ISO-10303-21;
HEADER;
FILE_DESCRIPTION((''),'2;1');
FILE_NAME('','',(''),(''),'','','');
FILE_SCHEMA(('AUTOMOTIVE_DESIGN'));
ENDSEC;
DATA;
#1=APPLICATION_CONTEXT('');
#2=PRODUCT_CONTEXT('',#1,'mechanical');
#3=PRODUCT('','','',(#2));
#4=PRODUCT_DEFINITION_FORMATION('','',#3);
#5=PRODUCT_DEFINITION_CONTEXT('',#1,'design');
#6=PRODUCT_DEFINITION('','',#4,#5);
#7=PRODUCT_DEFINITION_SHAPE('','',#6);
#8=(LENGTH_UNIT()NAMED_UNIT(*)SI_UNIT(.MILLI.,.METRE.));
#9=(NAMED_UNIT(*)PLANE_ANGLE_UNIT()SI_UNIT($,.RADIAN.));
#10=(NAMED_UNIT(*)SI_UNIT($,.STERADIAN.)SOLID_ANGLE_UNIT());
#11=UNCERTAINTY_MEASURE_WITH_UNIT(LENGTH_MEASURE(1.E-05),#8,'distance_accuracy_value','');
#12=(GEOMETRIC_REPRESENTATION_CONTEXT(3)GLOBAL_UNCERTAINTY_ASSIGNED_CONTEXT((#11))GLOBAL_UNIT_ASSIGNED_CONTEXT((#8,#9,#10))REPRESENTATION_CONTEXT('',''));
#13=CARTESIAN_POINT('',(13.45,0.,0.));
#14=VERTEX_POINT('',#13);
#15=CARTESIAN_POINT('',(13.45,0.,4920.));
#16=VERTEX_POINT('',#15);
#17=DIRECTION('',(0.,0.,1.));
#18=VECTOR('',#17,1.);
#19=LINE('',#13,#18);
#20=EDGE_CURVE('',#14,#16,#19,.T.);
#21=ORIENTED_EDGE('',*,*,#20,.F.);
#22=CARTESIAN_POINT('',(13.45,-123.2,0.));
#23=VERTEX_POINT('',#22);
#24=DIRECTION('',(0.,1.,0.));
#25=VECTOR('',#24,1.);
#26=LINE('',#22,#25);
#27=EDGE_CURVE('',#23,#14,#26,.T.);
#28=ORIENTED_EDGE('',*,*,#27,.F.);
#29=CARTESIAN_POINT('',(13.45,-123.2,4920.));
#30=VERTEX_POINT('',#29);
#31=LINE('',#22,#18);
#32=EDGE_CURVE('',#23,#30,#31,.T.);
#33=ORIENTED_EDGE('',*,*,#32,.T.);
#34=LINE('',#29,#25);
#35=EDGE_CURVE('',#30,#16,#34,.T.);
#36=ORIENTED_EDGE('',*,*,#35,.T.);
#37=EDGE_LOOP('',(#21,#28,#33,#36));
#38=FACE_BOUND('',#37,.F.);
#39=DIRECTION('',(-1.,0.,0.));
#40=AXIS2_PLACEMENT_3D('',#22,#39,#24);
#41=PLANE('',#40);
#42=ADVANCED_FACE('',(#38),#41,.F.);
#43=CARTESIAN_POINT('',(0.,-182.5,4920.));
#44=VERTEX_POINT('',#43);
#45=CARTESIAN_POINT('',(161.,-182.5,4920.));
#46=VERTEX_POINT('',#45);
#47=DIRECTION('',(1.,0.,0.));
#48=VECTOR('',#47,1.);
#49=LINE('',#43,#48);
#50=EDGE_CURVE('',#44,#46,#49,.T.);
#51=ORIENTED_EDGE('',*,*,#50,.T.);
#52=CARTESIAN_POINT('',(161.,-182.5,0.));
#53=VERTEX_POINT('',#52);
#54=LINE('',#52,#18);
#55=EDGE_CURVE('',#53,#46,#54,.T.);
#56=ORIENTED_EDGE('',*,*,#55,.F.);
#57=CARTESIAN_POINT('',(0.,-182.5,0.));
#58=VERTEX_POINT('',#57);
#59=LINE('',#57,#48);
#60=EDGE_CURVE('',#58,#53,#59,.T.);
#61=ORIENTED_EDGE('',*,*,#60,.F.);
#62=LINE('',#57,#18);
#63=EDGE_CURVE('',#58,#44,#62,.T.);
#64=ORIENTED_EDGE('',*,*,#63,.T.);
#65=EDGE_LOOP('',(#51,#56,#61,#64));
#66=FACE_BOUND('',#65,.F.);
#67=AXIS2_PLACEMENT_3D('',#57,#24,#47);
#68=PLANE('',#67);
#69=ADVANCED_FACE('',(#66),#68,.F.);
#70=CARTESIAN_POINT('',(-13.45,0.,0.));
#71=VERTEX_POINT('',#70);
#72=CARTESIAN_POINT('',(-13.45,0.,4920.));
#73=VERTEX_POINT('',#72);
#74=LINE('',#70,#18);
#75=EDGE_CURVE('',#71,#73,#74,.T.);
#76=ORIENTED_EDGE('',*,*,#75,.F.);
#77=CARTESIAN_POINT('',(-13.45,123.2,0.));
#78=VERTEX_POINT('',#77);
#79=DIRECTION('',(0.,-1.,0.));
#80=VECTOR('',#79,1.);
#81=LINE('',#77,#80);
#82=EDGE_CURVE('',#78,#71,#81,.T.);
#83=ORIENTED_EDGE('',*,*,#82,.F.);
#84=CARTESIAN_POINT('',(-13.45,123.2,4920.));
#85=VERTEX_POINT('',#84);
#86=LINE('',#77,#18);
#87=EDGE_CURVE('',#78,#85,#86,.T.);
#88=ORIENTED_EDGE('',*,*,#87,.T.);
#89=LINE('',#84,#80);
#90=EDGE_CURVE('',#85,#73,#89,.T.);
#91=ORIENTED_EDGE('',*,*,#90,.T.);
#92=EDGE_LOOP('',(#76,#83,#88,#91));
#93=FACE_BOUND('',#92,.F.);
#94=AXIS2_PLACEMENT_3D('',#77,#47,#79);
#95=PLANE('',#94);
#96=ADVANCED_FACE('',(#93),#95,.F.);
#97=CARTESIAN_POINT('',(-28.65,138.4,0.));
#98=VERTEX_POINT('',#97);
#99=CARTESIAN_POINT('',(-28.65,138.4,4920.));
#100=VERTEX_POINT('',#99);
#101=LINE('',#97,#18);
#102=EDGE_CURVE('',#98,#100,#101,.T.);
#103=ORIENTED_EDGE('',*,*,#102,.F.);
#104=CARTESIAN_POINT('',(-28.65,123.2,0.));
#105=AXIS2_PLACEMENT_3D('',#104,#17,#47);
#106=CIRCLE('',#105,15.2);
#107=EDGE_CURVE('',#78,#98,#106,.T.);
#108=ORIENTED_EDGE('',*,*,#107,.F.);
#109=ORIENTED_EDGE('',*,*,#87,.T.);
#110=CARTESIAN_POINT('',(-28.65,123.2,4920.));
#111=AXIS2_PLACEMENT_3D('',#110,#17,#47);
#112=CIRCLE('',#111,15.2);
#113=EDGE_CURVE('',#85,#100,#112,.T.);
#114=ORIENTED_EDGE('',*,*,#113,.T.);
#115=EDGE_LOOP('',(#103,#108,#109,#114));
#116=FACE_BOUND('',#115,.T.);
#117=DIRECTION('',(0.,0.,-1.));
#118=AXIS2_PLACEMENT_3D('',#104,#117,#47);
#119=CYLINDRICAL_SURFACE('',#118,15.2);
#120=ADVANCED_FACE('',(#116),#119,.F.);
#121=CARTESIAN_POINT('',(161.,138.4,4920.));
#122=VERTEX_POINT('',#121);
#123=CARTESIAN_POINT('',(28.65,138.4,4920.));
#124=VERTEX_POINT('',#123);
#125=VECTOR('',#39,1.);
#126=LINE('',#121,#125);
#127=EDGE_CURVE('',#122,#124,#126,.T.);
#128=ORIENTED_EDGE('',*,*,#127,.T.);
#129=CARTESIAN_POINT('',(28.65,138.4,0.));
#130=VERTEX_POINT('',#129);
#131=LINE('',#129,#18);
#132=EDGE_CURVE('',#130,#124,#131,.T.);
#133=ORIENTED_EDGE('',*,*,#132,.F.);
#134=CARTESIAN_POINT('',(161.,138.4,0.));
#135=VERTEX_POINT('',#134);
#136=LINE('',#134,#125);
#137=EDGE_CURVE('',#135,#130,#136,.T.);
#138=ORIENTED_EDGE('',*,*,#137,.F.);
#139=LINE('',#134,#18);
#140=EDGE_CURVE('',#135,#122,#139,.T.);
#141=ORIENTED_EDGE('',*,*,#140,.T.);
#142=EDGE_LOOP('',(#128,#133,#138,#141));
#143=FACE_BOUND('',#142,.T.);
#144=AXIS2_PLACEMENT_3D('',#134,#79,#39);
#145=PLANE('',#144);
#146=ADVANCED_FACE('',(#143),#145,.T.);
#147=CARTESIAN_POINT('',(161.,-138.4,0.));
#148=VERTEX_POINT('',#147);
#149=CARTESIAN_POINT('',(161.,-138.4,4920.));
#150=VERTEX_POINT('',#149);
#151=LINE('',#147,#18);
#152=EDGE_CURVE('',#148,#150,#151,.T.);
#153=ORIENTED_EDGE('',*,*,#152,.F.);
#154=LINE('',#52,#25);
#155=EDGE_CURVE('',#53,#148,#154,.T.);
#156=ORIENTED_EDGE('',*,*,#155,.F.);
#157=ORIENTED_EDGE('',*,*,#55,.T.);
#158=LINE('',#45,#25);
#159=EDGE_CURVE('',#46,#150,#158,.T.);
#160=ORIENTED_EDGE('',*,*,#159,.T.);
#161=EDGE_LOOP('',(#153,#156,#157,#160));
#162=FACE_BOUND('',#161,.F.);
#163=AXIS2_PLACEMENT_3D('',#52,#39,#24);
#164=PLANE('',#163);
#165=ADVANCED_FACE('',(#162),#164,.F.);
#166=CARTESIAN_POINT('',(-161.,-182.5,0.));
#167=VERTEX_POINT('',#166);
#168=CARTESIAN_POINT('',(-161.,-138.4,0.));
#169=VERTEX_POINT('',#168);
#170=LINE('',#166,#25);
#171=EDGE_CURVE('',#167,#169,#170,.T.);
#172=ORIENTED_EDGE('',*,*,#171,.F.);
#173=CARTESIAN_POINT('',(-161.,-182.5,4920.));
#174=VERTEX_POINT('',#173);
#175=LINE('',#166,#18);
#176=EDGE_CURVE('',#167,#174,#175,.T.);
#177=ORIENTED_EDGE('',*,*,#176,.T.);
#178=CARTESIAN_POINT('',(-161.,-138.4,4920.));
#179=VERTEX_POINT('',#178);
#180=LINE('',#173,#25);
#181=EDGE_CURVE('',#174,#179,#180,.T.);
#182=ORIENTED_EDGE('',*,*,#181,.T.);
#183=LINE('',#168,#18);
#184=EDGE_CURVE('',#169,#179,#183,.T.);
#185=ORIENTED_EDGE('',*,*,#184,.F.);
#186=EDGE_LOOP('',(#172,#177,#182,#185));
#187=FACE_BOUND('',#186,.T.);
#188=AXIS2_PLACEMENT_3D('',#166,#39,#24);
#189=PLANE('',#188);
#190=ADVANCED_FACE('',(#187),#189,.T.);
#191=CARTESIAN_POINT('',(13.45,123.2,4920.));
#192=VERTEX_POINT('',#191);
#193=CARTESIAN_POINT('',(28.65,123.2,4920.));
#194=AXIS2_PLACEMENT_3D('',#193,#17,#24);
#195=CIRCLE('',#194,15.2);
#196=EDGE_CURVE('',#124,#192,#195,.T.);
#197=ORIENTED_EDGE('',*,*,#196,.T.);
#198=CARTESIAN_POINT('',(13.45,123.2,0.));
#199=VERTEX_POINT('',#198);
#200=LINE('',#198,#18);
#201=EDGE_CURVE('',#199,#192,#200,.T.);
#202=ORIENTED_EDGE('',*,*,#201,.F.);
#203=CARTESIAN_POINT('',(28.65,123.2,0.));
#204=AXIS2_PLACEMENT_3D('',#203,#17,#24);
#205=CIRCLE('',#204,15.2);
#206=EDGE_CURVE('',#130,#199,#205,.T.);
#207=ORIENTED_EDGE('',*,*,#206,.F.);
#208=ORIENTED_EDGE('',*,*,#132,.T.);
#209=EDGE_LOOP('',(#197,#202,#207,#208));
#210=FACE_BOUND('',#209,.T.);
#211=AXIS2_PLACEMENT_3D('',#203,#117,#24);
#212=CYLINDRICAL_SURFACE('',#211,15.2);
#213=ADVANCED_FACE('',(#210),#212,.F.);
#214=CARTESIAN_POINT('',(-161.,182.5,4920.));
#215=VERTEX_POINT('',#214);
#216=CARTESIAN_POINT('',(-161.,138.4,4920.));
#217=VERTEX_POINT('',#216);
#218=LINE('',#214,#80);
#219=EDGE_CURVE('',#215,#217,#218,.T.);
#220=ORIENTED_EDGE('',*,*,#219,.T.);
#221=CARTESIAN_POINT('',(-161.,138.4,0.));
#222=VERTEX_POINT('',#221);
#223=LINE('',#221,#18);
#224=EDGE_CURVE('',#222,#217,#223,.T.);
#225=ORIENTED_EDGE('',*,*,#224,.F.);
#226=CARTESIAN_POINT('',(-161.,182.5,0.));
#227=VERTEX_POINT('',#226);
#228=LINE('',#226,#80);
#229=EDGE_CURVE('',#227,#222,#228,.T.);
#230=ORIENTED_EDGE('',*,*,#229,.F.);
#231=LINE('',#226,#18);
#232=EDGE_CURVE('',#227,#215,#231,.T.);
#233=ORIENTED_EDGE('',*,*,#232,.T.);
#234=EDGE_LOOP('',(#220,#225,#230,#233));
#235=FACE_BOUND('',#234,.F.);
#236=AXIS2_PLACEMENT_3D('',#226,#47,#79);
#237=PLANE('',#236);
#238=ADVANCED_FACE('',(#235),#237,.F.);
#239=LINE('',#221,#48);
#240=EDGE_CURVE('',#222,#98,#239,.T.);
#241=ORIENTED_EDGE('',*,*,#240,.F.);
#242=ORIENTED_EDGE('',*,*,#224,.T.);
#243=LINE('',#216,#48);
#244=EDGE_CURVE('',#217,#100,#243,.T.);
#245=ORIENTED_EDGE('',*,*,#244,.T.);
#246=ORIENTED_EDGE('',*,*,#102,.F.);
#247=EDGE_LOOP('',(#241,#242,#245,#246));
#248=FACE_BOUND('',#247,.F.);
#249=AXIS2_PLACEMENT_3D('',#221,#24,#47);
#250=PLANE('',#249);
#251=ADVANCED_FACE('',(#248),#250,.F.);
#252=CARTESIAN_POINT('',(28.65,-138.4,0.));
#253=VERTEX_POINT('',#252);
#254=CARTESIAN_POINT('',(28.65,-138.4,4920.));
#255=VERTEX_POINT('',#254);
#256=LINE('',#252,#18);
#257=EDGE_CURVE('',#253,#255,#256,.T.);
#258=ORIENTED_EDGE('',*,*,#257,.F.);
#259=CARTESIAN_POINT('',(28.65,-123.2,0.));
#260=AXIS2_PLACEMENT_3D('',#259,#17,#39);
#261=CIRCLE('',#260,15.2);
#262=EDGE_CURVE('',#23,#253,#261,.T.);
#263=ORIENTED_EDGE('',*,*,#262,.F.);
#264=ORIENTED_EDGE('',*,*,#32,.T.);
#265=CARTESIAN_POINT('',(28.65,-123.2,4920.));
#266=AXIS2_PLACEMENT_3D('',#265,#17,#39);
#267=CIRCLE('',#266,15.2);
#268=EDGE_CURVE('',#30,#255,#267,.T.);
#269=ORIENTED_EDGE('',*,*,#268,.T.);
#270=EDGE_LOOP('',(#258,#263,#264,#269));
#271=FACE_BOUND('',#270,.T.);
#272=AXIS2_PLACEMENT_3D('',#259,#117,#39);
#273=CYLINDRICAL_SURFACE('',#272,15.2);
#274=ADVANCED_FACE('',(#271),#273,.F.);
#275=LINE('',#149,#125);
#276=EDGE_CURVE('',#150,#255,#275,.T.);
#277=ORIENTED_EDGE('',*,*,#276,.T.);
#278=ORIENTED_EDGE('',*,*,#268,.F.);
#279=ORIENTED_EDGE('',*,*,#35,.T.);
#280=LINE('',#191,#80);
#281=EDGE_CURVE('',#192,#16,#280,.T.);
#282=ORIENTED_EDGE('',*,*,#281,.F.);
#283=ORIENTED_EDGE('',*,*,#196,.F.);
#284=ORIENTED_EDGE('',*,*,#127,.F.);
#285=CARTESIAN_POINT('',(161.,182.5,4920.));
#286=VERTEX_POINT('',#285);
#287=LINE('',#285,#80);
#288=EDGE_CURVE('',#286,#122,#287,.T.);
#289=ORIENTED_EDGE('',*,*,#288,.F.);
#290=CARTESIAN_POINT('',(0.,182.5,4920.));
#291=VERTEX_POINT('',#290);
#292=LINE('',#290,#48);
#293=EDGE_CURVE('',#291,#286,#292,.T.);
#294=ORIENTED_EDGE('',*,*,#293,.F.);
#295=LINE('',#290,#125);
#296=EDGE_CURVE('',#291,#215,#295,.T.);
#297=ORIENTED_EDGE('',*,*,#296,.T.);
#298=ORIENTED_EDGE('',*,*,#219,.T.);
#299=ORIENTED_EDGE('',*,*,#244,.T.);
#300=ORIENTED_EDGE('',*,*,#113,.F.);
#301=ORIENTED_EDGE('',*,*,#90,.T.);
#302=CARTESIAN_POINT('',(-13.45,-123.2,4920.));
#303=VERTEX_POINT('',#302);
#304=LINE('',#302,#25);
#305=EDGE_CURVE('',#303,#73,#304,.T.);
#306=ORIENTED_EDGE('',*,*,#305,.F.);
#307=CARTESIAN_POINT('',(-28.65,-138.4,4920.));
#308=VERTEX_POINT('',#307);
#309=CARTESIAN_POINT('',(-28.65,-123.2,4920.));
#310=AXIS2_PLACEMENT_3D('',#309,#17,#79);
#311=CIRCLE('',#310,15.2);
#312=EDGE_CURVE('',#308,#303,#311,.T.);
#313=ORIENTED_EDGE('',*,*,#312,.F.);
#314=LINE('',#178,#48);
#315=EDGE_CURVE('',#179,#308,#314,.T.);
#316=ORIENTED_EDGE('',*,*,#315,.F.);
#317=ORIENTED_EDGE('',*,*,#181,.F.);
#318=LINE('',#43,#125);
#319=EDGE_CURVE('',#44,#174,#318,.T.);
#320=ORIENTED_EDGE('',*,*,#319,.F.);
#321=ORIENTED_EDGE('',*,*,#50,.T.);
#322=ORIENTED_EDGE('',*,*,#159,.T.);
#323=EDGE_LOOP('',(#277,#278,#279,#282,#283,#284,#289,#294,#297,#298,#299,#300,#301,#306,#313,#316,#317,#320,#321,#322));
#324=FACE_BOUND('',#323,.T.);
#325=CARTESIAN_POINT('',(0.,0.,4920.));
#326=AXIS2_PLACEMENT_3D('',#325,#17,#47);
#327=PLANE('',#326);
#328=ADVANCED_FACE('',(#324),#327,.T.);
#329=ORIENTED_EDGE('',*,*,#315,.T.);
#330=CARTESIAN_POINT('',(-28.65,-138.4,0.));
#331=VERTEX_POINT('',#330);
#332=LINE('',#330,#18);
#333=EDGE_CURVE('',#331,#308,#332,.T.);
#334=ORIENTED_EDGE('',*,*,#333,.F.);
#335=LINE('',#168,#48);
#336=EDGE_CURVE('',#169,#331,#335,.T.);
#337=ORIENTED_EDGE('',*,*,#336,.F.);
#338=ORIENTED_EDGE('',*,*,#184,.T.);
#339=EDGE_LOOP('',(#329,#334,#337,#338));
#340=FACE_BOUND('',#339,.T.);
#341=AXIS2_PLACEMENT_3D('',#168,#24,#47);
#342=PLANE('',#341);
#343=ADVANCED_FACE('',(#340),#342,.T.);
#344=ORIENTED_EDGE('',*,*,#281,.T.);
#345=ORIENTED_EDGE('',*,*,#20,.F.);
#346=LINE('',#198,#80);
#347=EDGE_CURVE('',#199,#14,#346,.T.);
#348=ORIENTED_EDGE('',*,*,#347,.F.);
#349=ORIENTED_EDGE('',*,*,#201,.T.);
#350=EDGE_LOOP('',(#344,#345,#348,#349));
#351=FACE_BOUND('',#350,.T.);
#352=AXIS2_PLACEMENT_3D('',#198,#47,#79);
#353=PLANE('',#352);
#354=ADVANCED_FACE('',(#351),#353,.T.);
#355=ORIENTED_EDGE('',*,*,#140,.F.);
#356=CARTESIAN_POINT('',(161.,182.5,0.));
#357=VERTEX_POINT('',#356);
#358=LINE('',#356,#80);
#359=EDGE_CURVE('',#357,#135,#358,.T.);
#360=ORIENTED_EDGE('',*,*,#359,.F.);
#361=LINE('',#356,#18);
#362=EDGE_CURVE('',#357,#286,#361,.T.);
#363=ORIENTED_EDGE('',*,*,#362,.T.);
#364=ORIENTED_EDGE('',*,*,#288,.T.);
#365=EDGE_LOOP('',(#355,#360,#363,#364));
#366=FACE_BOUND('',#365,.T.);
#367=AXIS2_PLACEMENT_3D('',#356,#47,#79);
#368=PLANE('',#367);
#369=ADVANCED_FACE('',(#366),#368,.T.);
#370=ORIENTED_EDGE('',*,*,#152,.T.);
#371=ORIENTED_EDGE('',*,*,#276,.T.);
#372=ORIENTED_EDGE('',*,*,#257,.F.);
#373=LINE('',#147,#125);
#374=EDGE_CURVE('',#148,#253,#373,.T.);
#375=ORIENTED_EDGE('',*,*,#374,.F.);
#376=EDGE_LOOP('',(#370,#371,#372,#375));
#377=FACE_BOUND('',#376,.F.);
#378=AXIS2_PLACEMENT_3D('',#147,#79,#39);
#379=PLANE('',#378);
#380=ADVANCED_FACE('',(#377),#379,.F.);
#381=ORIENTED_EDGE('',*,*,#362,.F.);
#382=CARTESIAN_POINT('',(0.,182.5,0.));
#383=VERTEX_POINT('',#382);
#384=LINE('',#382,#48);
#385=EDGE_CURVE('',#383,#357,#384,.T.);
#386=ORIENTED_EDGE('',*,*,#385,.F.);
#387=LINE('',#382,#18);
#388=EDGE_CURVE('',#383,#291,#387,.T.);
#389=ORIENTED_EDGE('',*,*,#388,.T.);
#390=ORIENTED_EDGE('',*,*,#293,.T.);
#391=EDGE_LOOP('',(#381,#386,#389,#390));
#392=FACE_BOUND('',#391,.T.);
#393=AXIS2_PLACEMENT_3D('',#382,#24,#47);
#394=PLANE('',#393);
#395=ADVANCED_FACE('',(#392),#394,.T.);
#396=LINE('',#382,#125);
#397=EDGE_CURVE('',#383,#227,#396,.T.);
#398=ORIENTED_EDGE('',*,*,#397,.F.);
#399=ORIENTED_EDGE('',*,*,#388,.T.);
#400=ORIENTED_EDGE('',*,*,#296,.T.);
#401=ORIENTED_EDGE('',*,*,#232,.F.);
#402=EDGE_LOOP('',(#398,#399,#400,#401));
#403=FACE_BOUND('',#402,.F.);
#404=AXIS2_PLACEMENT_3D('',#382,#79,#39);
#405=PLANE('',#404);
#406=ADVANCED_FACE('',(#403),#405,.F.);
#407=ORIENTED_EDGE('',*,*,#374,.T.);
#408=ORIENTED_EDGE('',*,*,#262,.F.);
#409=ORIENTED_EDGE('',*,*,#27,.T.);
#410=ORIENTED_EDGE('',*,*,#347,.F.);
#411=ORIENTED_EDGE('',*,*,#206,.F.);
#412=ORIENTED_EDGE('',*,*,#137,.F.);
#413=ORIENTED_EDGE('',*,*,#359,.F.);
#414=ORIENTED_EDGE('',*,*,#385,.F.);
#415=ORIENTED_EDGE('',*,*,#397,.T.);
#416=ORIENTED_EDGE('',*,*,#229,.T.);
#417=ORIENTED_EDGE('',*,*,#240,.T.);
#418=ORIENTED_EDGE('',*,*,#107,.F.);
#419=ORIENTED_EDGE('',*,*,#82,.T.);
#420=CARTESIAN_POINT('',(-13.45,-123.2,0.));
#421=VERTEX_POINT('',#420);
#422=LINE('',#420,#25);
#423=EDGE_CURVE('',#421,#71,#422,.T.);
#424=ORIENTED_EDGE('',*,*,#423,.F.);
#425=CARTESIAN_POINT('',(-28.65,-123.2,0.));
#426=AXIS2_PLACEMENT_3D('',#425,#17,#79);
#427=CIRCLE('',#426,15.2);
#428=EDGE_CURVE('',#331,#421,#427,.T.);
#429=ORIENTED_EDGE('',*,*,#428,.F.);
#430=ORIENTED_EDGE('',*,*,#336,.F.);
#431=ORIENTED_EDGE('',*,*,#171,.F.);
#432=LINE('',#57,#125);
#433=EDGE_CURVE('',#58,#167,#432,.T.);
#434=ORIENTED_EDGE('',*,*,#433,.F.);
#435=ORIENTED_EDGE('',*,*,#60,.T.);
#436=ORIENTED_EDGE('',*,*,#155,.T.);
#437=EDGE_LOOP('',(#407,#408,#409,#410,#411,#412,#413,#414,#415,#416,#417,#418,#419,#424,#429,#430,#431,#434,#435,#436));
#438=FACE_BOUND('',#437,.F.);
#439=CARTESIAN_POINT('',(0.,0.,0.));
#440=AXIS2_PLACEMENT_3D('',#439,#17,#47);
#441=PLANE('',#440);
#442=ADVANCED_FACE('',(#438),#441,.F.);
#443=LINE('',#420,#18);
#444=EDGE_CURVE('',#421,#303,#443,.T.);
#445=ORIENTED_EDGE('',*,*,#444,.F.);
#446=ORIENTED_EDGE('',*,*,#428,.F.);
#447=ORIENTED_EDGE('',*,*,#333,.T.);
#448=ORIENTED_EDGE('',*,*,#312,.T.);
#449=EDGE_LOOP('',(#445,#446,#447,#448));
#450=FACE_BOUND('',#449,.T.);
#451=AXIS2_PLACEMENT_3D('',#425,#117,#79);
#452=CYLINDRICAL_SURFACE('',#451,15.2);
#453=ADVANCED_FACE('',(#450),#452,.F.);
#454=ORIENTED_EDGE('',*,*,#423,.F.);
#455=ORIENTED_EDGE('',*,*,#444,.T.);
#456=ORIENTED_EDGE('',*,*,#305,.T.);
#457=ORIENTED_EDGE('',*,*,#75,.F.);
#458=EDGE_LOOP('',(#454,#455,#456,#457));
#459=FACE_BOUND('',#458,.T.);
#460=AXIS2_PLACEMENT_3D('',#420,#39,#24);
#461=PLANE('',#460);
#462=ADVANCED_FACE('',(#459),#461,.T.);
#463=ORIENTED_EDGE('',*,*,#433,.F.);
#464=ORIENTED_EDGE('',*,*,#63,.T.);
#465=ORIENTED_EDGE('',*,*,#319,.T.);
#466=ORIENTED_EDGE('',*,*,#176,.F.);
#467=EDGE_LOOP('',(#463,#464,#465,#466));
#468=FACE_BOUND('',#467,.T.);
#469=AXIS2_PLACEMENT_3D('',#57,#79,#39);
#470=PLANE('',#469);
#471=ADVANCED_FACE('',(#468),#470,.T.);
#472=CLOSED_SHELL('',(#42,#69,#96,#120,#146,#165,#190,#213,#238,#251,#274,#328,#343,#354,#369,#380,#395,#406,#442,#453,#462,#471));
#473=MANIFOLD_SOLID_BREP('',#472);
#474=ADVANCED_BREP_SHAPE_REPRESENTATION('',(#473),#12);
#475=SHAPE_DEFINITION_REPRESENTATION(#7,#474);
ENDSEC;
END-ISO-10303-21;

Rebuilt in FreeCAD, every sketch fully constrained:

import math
import FreeCAD as App
import Part
import Sketcher
Q = App.Units.Quantity

doc = App.newDocument("Part")
body = doc.addObject("PartDesign::Body", "Body")

# Sketch on XY plane
sketch1 = body.newObject("Sketcher::SketchObject", "Sketch")
sketch1.AttachmentSupport = (doc.getObject("XY_Plane"), [""])
sketch1.MapMode = "FlatFace"
sketch1.addGeometry(Part.LineSegment(App.Vector(-161, -138.4, 0), App.Vector(-161, -182.5, 0)), False)
sketch1.addGeometry(Part.LineSegment(App.Vector(-161, -182.5, 0), App.Vector(161, -182.5, 0)), False)
sketch1.addGeometry(Part.LineSegment(App.Vector(161, -182.5, 0), App.Vector(161, -138.4, 0)), False)
sketch1.addGeometry(Part.LineSegment(App.Vector(161, -138.4, 0), App.Vector(28.65, -138.4, 0)), False)
sketch1.addGeometry(Part.ArcOfCircle(Part.Circle(App.Vector(28.65, -123.2, 0), App.Vector(0, 0, 1), 15.2), math.radians(180), math.radians(270)), False)
sketch1.addGeometry(Part.LineSegment(App.Vector(13.45, -123.2, 0), App.Vector(13.45, 123.2, 0)), False)
sketch1.addGeometry(Part.ArcOfCircle(Part.Circle(App.Vector(28.65, 123.2, 0), App.Vector(0, 0, 1), 15.2), math.radians(90), math.radians(180)), False)
sketch1.addGeometry(Part.LineSegment(App.Vector(28.65, 138.4, 0), App.Vector(161, 138.4, 0)), False)
sketch1.addGeometry(Part.LineSegment(App.Vector(161, 138.4, 0), App.Vector(161, 182.5, 0)), False)
sketch1.addGeometry(Part.LineSegment(App.Vector(161, 182.5, 0), App.Vector(-161, 182.5, 0)), False)
sketch1.addGeometry(Part.LineSegment(App.Vector(-161, 182.5, 0), App.Vector(-161, 138.4, 0)), False)
sketch1.addGeometry(Part.LineSegment(App.Vector(-161, 138.4, 0), App.Vector(-28.65, 138.4, 0)), False)
sketch1.addGeometry(Part.ArcOfCircle(Part.Circle(App.Vector(-28.65, 123.2, 0), App.Vector(0, 0, 1), 15.2), math.radians(0), math.radians(90)), False)
sketch1.addGeometry(Part.LineSegment(App.Vector(-13.45, 123.2, 0), App.Vector(-13.45, -123.2, 0)), False)
sketch1.addGeometry(Part.ArcOfCircle(Part.Circle(App.Vector(-28.65, -123.2, 0), App.Vector(0, 0, 1), 15.2), math.radians(-90), math.radians(0)), False)
sketch1.addGeometry(Part.LineSegment(App.Vector(-28.65, -138.4, 0), App.Vector(-161, -138.4, 0)), False)
sketch1.addConstraint(Sketcher.Constraint("Coincident", 0, 2, 1, 1))
sketch1.addConstraint(Sketcher.Constraint("Coincident", 1, 2, 2, 1))
sketch1.addConstraint(Sketcher.Constraint("Coincident", 2, 2, 3, 1))
sketch1.addConstraint(Sketcher.Constraint("Tangent", 3, 2, 4, 2))
sketch1.addConstraint(Sketcher.Constraint("Tangent", 4, 1, 5, 1))
sketch1.addConstraint(Sketcher.Constraint("Tangent", 5, 2, 6, 2))
sketch1.addConstraint(Sketcher.Constraint("Tangent", 6, 1, 7, 1))
sketch1.addConstraint(Sketcher.Constraint("Coincident", 7, 2, 8, 1))
sketch1.addConstraint(Sketcher.Constraint("Coincident", 8, 2, 9, 1))
sketch1.addConstraint(Sketcher.Constraint("Coincident", 9, 2, 10, 1))
sketch1.addConstraint(Sketcher.Constraint("Coincident", 10, 2, 11, 1))
sketch1.addConstraint(Sketcher.Constraint("Tangent", 11, 2, 12, 2))
sketch1.addConstraint(Sketcher.Constraint("Tangent", 12, 1, 13, 1))
sketch1.addConstraint(Sketcher.Constraint("Tangent", 13, 2, 14, 2))
sketch1.addConstraint(Sketcher.Constraint("Tangent", 14, 1, 15, 1))
sketch1.addConstraint(Sketcher.Constraint("Coincident", 15, 2, 0, 1))
sketch1.addConstraint(Sketcher.Constraint("Vertical", 0))
sketch1.addConstraint(Sketcher.Constraint("Horizontal", 1))
sketch1.addConstraint(Sketcher.Constraint("Vertical", 2))
sketch1.addConstraint(Sketcher.Constraint("Horizontal", 3))
sketch1.addConstraint(Sketcher.Constraint("Vertical", 5))
sketch1.addConstraint(Sketcher.Constraint("Horizontal", 7))
sketch1.addConstraint(Sketcher.Constraint("Vertical", 8))
sketch1.addConstraint(Sketcher.Constraint("Horizontal", 9))
sketch1.addConstraint(Sketcher.Constraint("Vertical", 10))
sketch1.addConstraint(Sketcher.Constraint("Horizontal", 11))
sketch1.addConstraint(Sketcher.Constraint("Vertical", 13))
sketch1.addConstraint(Sketcher.Constraint("Horizontal", 15))
sketch1.addConstraint(Sketcher.Constraint("Equal", 4, 6))
sketch1.addConstraint(Sketcher.Constraint("Equal", 6, 12))
sketch1.addConstraint(Sketcher.Constraint("Equal", 12, 14))
sketch1.addConstraint(Sketcher.Constraint("Symmetric", 4, 3, 12, 3, -1, 1))
sketch1.addConstraint(Sketcher.Constraint("Symmetric", 0, 2, 8, 2, -1, 1))
sketch1.addConstraint(Sketcher.Constraint("Symmetric", 7, 2, 10, 2, -2))
sketch1.addConstraint(Sketcher.Constraint("Symmetric", 2, 2, 15, 2, -2))
sketch1.addConstraint(Sketcher.Constraint("Radius", 4, Q("15.2 mm")))
sketch1.addConstraint(Sketcher.Constraint("DistanceY", 0, 2, 0, 1, Q("44.1 mm")))
sketch1.addConstraint(Sketcher.Constraint("DistanceX", 0, 2, -1, 1, Q("161 mm")))
sketch1.addConstraint(Sketcher.Constraint("DistanceY", 0, 2, -1, 1, Q("182.5 mm")))
sketch1.addConstraint(Sketcher.Constraint("DistanceX", -1, 1, 4, 1, Q("13.45 mm")))
pad1 = body.newObject("PartDesign::Pad", "Pad")
pad1.Profile = sketch1
pad1.Length = 4920

doc.recompute()
